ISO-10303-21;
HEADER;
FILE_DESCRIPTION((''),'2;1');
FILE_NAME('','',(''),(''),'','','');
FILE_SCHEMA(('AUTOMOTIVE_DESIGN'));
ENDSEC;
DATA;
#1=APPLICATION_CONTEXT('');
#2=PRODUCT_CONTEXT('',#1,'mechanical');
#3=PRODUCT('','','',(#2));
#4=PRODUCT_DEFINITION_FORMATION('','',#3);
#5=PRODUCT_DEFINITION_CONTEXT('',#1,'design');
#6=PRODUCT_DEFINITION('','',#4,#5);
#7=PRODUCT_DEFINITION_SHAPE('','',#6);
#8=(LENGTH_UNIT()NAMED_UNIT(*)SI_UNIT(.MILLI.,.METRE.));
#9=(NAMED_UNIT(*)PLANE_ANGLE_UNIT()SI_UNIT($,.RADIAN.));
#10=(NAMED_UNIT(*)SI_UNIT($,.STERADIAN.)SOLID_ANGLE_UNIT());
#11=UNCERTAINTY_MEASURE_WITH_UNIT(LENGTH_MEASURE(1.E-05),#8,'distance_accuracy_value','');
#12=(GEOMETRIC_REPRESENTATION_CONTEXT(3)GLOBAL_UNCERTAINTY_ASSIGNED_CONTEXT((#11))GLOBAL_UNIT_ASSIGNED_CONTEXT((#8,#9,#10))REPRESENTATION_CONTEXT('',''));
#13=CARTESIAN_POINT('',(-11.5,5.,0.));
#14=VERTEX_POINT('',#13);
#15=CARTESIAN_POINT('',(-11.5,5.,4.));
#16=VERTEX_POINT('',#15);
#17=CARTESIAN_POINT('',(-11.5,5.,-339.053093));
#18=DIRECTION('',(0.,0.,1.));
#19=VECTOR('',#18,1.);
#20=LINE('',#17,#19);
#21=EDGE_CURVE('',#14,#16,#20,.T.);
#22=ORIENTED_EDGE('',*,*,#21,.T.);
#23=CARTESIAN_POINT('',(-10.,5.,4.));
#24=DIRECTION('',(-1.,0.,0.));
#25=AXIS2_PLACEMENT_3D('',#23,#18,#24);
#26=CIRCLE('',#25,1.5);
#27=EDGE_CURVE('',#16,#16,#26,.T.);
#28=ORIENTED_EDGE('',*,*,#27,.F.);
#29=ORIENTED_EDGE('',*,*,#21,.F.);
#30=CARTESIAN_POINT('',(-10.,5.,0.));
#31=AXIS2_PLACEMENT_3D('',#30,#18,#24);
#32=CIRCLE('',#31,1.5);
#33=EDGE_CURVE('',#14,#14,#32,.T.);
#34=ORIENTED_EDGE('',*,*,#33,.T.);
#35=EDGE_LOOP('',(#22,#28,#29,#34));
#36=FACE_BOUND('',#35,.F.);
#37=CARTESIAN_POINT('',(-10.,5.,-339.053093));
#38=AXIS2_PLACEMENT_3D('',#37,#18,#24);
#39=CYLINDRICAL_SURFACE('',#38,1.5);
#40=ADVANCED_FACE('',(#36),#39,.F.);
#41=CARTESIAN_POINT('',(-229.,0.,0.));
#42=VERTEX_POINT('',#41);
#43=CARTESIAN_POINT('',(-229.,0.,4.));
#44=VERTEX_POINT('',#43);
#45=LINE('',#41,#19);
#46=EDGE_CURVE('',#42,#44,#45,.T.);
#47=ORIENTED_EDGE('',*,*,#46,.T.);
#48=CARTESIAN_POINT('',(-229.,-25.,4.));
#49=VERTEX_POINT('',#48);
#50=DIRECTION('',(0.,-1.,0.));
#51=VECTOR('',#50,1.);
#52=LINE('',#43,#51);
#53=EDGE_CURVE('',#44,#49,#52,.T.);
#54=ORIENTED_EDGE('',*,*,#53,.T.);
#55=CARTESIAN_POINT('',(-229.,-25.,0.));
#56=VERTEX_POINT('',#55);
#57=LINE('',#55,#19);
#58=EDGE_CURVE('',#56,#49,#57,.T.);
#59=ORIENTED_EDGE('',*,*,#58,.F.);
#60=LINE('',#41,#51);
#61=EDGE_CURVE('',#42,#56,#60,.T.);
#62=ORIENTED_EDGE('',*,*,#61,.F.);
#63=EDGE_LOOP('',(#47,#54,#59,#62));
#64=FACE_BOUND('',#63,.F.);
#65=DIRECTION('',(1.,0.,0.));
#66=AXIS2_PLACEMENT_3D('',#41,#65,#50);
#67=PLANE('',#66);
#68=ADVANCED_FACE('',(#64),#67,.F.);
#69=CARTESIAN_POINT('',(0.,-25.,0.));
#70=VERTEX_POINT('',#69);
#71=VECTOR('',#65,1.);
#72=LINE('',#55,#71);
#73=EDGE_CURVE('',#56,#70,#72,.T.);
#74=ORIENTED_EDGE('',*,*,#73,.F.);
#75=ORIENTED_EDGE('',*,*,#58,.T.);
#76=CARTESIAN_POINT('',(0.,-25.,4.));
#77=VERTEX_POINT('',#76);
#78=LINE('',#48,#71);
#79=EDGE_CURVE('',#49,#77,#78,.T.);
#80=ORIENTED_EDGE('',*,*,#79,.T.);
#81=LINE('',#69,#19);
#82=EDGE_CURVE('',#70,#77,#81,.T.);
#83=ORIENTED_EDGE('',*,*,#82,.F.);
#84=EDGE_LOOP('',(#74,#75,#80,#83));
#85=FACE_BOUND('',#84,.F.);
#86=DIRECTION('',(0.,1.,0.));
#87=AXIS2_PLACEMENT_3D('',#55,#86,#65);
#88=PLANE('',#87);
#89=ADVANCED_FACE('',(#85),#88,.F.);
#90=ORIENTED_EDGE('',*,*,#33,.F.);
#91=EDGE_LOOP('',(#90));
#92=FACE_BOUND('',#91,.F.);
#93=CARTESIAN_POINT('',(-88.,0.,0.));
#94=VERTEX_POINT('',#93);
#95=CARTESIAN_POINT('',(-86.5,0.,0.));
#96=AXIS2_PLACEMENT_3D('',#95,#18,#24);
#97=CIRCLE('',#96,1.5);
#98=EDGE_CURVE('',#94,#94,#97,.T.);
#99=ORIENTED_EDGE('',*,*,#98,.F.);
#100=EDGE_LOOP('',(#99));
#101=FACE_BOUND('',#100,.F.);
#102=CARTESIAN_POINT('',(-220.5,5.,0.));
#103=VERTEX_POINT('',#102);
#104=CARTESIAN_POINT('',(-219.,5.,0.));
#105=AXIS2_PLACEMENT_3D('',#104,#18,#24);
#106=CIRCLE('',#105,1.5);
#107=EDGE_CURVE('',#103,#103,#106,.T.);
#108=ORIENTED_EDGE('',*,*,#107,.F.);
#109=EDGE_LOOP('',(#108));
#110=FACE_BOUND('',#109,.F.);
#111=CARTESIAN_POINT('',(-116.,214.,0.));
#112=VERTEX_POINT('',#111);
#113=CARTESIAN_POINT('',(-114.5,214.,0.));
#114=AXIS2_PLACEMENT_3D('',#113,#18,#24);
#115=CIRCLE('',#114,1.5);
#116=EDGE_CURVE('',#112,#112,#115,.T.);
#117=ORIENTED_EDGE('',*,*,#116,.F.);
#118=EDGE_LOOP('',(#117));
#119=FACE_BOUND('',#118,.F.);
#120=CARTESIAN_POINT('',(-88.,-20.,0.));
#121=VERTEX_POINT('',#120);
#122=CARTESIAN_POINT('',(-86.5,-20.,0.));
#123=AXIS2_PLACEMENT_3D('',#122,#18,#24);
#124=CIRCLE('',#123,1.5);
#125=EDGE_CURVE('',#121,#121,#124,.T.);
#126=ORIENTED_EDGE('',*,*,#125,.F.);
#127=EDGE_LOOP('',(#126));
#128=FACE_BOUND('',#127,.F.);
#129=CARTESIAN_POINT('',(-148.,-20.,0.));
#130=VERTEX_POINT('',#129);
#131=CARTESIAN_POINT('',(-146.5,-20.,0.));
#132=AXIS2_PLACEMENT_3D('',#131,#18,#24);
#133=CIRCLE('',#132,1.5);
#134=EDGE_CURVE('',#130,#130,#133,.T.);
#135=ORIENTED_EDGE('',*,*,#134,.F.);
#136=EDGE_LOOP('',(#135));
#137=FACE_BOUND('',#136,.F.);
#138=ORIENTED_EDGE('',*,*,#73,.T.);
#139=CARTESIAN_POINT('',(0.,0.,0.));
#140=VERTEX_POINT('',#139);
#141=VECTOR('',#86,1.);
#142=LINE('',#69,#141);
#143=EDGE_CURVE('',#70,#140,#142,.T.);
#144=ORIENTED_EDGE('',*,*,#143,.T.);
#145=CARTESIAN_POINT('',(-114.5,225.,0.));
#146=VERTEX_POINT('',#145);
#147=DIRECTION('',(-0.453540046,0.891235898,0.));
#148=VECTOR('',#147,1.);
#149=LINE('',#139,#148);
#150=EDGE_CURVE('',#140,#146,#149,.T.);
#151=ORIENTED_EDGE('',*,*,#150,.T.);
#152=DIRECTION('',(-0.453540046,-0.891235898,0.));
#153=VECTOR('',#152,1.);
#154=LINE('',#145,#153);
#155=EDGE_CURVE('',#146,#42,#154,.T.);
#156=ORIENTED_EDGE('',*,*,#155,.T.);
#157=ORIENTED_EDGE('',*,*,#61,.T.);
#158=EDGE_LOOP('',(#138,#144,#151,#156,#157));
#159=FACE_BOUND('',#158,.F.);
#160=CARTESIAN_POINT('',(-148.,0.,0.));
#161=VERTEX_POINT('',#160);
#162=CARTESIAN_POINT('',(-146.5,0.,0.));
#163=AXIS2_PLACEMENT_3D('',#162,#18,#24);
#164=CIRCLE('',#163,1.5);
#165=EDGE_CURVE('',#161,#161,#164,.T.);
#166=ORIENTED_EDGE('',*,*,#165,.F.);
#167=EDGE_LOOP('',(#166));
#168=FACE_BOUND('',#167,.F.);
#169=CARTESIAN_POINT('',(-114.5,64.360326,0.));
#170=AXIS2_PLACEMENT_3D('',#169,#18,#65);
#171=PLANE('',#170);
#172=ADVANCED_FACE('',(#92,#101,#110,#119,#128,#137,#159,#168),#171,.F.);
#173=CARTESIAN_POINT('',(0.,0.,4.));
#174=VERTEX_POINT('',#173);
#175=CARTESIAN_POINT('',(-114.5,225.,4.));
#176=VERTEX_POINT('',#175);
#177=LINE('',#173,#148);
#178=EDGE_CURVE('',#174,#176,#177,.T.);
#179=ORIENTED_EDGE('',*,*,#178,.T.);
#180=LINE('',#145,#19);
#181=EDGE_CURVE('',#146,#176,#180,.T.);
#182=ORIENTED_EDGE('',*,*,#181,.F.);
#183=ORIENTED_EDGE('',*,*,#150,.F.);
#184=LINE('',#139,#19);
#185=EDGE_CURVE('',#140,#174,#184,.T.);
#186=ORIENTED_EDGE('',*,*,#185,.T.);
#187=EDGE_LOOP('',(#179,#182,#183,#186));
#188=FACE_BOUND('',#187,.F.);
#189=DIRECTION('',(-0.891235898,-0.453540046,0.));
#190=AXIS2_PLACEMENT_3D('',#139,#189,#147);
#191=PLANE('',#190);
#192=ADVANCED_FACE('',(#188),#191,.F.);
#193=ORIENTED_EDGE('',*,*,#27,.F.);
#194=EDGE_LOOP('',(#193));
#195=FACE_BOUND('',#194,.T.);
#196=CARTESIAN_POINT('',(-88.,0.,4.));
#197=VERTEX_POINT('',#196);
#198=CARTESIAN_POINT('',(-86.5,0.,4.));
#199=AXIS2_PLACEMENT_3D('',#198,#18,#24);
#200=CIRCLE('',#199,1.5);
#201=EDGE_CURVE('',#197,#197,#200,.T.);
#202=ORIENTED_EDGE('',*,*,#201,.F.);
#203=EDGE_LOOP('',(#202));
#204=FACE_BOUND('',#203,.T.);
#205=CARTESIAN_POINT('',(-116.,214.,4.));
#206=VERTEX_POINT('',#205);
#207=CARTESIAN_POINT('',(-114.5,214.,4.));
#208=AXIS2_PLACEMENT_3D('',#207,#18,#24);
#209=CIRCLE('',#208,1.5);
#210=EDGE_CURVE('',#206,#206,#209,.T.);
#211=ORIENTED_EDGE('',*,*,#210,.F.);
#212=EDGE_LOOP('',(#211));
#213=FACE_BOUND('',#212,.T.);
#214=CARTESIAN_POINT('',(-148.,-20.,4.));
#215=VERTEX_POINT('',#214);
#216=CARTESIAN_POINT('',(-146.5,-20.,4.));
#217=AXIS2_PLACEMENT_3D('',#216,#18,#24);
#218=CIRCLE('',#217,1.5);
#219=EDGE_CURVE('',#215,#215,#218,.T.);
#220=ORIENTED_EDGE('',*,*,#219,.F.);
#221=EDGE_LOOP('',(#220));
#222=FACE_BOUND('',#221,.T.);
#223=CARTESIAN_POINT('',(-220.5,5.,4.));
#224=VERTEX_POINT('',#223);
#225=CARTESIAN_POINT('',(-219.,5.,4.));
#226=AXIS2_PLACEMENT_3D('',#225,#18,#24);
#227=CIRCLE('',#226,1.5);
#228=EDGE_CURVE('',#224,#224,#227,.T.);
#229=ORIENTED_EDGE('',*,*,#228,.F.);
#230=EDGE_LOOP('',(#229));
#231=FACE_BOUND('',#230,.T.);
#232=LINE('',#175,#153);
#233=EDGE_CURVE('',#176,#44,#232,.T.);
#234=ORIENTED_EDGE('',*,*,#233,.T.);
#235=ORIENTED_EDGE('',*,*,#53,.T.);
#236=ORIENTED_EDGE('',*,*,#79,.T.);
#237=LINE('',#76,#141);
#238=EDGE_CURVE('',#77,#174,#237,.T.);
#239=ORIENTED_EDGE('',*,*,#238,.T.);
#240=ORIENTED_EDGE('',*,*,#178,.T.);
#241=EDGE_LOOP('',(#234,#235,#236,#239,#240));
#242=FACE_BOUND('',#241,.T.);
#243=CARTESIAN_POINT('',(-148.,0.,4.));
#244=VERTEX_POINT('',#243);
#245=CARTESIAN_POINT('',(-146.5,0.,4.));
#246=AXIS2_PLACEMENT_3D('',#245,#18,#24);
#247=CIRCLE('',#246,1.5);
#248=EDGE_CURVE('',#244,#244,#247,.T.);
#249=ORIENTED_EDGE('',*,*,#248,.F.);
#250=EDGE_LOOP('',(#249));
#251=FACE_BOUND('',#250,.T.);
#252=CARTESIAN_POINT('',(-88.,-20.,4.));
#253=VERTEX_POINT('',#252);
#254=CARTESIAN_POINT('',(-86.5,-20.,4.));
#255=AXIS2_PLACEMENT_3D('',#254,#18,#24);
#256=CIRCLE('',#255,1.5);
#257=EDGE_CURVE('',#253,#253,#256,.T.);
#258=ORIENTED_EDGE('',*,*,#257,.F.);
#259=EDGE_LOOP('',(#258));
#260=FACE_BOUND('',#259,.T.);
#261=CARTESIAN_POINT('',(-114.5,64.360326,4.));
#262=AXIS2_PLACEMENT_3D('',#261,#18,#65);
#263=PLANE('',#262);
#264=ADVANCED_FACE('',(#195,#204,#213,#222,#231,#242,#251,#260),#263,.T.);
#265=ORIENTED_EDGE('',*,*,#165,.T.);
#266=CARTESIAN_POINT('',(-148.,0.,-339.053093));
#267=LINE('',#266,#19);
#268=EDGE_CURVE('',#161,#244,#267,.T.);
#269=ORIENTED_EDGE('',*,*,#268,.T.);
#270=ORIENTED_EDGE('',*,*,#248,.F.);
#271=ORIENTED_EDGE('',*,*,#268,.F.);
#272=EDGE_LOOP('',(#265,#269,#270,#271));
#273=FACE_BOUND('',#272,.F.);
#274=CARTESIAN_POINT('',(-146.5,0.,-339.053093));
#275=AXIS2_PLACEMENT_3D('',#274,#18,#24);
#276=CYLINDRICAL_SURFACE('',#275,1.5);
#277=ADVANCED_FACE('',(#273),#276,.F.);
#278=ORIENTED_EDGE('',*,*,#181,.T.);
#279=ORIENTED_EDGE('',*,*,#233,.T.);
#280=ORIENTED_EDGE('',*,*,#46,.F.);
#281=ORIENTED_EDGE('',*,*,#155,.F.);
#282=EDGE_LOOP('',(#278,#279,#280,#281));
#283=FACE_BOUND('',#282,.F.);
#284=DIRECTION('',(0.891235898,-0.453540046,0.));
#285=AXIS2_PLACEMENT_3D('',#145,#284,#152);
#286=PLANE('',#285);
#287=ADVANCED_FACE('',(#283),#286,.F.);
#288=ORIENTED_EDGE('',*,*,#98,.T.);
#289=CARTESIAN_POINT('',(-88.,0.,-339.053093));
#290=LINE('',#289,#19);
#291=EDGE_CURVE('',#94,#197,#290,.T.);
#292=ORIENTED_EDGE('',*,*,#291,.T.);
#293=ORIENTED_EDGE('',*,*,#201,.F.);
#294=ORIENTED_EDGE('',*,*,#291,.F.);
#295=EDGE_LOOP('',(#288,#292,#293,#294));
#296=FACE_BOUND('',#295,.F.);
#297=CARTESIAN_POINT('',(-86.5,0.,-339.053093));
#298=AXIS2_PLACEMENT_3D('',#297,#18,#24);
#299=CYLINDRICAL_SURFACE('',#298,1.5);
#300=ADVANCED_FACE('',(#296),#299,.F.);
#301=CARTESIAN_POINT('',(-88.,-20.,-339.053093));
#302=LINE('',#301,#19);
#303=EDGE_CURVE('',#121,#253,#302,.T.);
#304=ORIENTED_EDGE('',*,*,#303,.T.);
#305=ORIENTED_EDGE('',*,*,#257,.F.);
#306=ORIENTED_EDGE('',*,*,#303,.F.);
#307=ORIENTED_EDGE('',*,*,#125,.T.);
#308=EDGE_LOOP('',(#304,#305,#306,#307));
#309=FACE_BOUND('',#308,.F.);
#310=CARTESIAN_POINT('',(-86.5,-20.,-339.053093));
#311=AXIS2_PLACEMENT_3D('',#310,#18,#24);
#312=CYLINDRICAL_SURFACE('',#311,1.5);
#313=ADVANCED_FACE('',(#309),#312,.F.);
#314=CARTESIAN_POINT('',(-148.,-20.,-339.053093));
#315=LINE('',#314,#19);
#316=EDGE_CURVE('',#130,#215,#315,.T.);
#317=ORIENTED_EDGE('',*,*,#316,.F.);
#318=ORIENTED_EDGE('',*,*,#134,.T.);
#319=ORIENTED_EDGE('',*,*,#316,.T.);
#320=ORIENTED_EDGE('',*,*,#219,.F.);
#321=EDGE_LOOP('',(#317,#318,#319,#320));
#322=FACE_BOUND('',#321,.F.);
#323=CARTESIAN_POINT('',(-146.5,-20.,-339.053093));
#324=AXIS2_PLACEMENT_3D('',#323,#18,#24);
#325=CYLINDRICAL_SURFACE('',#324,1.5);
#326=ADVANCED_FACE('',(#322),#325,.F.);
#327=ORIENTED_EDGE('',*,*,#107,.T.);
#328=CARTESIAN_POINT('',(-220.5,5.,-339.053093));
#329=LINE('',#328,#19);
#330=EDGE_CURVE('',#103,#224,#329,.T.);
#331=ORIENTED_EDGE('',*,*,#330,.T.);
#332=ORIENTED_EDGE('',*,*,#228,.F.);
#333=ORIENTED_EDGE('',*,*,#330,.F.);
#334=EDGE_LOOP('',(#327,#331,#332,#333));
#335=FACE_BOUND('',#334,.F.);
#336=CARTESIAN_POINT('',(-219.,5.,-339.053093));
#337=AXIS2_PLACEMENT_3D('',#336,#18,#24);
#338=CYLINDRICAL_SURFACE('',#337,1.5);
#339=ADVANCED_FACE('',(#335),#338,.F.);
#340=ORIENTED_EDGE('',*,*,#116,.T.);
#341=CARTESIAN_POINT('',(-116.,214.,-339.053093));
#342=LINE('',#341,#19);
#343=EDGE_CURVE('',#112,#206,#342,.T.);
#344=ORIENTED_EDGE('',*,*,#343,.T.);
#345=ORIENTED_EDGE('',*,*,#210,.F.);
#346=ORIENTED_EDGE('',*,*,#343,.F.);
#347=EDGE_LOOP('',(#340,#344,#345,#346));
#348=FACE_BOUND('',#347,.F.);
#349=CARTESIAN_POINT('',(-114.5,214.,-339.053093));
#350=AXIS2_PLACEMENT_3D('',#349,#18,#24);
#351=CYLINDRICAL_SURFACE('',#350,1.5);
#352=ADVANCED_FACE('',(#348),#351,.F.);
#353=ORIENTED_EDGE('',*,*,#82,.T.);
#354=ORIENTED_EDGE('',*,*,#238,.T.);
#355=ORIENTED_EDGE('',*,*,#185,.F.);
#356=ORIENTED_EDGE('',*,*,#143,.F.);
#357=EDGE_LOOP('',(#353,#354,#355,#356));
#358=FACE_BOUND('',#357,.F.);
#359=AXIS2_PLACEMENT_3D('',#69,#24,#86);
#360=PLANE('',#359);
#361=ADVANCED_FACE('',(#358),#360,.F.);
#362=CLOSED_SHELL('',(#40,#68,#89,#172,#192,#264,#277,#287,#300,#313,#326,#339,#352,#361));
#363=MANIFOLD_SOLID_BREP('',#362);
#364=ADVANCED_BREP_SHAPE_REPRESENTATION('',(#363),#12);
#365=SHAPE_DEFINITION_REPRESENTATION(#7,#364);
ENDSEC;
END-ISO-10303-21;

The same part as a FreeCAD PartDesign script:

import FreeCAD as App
import Part
import Sketcher

doc = App.newDocument("Part")
body = doc.addObject("PartDesign::Body", "Body")

# Sketch on XY plane
sketch1 = body.newObject("Sketcher::SketchObject", "Sketch")
sketch1.AttachmentSupport = (doc.getObject("XY_Plane"), [""])
sketch1.MapMode = "FlatFace"
sketch1.addGeometry([
    Part.LineSegment(App.Vector(0, 0, 0), App.Vector(-114, 225, 0)),  # 0
    Part.LineSegment(App.Vector(-114, 225, 0), App.Vector(-229, 0, 0)),  # 1
    Part.LineSegment(App.Vector(-229, 0, 0), App.Vector(-229, -25, 0)),  # 2
    Part.LineSegment(App.Vector(-229, -25, 0), App.Vector(0, -25, 0)),  # 3
    Part.LineSegment(App.Vector(0, -25, 0), App.Vector(0, 0, 0)),  # 4
], False)
sketch1.addConstraint([
    Sketcher.Constraint("Coincident", 0, 2, 1, 1),
    Sketcher.Constraint("Coincident", 1, 2, 2, 1),
    Sketcher.Constraint("Coincident", 2, 2, 3, 1),
    Sketcher.Constraint("Coincident", 3, 2, 4, 1),
    Sketcher.Constraint("Coincident", 4, 2, 0, 1),
    Sketcher.Constraint("Vertical", 2),
    Sketcher.Constraint("Horizontal", 3),
    Sketcher.Constraint("Vertical", 4),
    Sketcher.Constraint("Coincident", 4, 2, -1, 1),
    Sketcher.Constraint("PointOnObject", 1, 2, -1),
    Sketcher.Constraint("Equal", 0, 1),
    Sketcher.Constraint("DistanceX", 3, 1, 3, 2, 229.0),
    Sketcher.Constraint("DistanceY", 2, 2, 2, 1, 25.0),
    Sketcher.Constraint("DistanceY", -1, 1, 0, 2, 225.0),
])
pad1 = body.newObject("PartDesign::Pad", "Pad")
pad1.Profile = sketch1
pad1.Length = 4

# Sketch on XY plane
sketch2 = body.newObject("Sketcher::SketchObject", "Sketch001")
sketch2.AttachmentSupport = (doc.getObject("XY_Plane"), [""])
sketch2.MapMode = "FlatFace"
sketch2.addGeometry([
    Part.Circle(App.Vector(-114.5, 214, 0), App.Vector(0, 0, 1), 1.5),  # 0
    Part.Circle(App.Vector(-219, 5, 0), App.Vector(0, 0, 1), 1.5),  # 1
    Part.Circle(App.Vector(-146.5, 0, 0), App.Vector(0, 0, 1), 1.5),  # 2
    Part.Circle(App.Vector(-146.5, -20, 0), App.Vector(0, 0, 1), 1.5),  # 3
    Part.Circle(App.Vector(-86.5, -20, 0), App.Vector(0, 0, 1), 1.5),  # 4
    Part.Circle(App.Vector(-86.5, 0, 0), App.Vector(0, 0, 1), 1.5),  # 5
    Part.Circle(App.Vector(-10, 5, 0), App.Vector(0, 0, 1), 1.5),  # 6
], False)
sketch2.addConstraint([
    Sketcher.Constraint("Equal", 0, 1),
    Sketcher.Constraint("Equal", 1, 2),
    Sketcher.Constraint("Equal", 2, 3),
    Sketcher.Constraint("Equal", 3, 4),
    Sketcher.Constraint("Equal", 4, 5),
    Sketcher.Constraint("Equal", 5, 6),
    Sketcher.Constraint("PointOnObject", 2, 3, -1),
    Sketcher.Constraint("PointOnObject", 5, 3, -1),
    Sketcher.Constraint("Horizontal", 3, 3, 4, 3),
    Sketcher.Constraint("Horizontal", 1, 3, 6, 3),
    Sketcher.Constraint("Vertical", 2, 3, 3, 3),
    Sketcher.Constraint("Vertical", 4, 3, 5, 3),
    Sketcher.Constraint("Diameter", 0, 3.0),
    Sketcher.Constraint("DistanceY", -1, 1, 0, 3, 214.0),
    Sketcher.Constraint("DistanceX", 1, 3, -1, 1, 219.0),
    Sketcher.Constraint("DistanceY", -1, 1, 1, 3, 5.0),
    Sketcher.Constraint("DistanceY", 3, 3, -1, 1, 20.0),
    Sketcher.Constraint("DistanceX", 6, 3, -1, 1, 10.0),
    Sketcher.Constraint("DistanceX", 2, 3, 0, 3, 32.0),
    Sketcher.Constraint("DistanceX", 3, 3, 4, 3, 60.0),
    Sketcher.Constraint("DistanceX", 0, 3, -1, 1, 114.5),
])
doc.recompute()
hole = body.newObject("PartDesign::Hole", "Hole")
hole.Profile = sketch2
hole.ThreadType = "None"
hole.Diameter = 3
hole.DepthType = "ThroughAll"
hole.Reversed = True

doc.recompute()
